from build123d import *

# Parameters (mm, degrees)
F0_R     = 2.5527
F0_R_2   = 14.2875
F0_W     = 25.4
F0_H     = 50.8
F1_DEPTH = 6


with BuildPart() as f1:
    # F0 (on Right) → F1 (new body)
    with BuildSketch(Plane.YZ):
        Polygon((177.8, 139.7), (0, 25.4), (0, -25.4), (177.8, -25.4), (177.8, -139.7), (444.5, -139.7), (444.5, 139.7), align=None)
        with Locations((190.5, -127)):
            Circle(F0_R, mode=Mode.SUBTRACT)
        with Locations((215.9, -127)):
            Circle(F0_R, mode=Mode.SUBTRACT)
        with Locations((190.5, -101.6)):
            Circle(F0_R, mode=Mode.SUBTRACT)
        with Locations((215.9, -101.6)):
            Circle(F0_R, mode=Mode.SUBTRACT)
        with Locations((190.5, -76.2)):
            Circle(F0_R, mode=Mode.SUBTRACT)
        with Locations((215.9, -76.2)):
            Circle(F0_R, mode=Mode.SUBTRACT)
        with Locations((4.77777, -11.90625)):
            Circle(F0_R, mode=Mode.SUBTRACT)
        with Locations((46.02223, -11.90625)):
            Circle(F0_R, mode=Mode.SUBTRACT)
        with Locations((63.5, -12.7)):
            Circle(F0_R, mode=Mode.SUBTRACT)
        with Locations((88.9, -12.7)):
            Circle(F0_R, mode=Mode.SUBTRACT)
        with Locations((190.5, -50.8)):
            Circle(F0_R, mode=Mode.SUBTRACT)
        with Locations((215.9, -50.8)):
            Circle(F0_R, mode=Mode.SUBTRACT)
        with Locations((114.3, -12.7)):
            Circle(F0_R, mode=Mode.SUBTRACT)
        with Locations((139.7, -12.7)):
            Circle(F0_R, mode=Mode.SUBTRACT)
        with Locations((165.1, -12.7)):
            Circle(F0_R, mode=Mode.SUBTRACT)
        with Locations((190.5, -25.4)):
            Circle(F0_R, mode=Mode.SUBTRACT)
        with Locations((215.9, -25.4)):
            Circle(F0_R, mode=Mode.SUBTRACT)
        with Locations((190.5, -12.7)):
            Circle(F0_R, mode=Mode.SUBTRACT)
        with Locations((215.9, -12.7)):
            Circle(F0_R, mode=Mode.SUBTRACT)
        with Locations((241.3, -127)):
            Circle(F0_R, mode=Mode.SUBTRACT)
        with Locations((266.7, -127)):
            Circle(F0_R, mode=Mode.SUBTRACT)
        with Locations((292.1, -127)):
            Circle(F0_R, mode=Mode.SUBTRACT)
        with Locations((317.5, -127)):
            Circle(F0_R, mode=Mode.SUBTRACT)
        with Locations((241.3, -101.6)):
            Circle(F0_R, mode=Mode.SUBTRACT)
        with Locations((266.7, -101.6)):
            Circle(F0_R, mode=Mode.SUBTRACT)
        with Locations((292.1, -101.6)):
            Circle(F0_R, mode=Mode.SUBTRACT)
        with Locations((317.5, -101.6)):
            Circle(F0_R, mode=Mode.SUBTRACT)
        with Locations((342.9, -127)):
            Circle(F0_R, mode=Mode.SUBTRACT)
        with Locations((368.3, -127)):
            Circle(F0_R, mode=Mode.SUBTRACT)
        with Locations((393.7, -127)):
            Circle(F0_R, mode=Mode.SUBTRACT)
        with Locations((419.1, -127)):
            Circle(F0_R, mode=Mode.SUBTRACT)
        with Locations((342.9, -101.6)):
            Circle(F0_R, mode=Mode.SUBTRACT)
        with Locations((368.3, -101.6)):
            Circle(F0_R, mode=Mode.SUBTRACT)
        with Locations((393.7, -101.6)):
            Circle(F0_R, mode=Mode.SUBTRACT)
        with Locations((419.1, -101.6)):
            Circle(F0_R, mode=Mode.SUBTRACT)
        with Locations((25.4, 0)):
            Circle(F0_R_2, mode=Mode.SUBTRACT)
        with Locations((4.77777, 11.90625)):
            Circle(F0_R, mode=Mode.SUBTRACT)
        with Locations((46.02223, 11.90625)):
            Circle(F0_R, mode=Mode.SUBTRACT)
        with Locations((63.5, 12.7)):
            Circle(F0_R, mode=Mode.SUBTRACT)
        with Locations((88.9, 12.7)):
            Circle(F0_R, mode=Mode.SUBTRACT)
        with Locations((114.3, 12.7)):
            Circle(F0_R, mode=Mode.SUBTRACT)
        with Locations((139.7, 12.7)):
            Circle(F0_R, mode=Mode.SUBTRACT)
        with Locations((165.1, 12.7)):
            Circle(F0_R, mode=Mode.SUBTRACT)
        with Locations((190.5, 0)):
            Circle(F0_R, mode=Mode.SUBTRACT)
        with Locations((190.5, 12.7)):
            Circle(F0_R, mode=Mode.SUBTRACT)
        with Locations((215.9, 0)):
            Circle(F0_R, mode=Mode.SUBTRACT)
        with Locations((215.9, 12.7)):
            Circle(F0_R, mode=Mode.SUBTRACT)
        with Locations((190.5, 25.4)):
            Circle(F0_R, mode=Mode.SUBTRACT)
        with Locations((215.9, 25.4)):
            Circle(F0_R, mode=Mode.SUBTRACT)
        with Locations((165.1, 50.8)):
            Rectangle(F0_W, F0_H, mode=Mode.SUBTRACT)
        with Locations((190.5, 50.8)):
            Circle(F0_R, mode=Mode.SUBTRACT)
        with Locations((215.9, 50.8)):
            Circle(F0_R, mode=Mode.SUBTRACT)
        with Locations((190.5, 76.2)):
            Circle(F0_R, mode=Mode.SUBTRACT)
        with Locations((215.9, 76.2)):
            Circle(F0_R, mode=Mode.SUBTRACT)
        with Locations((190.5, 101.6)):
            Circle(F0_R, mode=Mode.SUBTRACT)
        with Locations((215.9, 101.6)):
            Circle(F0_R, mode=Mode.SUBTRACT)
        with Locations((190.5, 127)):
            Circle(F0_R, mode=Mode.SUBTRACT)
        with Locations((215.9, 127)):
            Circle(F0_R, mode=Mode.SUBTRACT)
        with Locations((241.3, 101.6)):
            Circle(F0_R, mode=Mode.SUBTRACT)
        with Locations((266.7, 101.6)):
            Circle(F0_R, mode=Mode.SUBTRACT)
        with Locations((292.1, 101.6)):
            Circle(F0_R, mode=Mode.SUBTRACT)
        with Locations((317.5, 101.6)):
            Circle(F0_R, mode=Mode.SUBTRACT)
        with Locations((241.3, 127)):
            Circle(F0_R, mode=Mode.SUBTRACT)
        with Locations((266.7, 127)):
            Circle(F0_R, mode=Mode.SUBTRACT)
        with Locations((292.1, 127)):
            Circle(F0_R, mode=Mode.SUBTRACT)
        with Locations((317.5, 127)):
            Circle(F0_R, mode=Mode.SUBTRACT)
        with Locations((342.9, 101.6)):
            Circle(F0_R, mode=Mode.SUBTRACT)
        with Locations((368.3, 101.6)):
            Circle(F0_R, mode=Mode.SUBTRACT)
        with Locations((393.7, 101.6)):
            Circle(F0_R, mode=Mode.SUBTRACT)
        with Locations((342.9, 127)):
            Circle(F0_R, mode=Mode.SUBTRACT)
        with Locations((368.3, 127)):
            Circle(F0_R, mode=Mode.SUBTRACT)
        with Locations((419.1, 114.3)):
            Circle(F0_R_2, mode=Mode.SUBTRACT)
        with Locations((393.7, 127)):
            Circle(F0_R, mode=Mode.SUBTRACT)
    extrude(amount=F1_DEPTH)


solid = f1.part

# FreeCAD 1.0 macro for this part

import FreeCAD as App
import Part
import Sketcher
from FreeCAD import Vector
Q = App.Units.Quantity

doc = App.newDocument("Part")
body = doc.addObject("PartDesign::Body", "Body")

sketch1 = doc.addObject("Sketcher::SketchObject", "Sketch")
body.addObject(sketch1)
sketch1.AttachmentSupport = (doc.YZ_Plane, [""])
sketch1.MapMode = "FlatFace"
sketch1.addGeometry([
    Part.LineSegment(Vector(177.8, 139.7, 0), Vector(0, 25.4, 0)),
    Part.LineSegment(Vector(0, 25.4, 0), Vector(0, -25.4, 0)),
    Part.LineSegment(Vector(0, -25.4, 0), Vector(177.8, -25.4, 0)),
    Part.LineSegment(Vector(177.8, -25.4, 0), Vector(177.8, -139.7, 0)),
    Part.LineSegment(Vector(177.8, -139.7, 0), Vector(444.5, -139.7, 0)),
    Part.LineSegment(Vector(444.5, -139.7, 0), Vector(444.5, 139.7, 0)),
    Part.LineSegment(Vector(444.5, 139.7, 0), Vector(177.8, 139.7, 0)),
    Part.Circle(Vector(190.5, -127, 0), Vector(0, 0, 1), 2.5527),
    Part.Circle(Vector(215.9, -127, 0), Vector(0, 0, 1), 2.5527),
    Part.Circle(Vector(190.5, -101.6, 0), Vector(0, 0, 1), 2.5527),
    Part.Circle(Vector(215.9, -101.6, 0), Vector(0, 0, 1), 2.5527),
    Part.Circle(Vector(190.5, -76.2, 0), Vector(0, 0, 1), 2.5527),
    Part.Circle(Vector(215.9, -76.2, 0), Vector(0, 0, 1), 2.5527),
    Part.Circle(Vector(4.77777, -11.90625, 0), Vector(0, 0, 1), 2.5527),
    Part.Circle(Vector(46.02223, -11.90625, 0), Vector(0, 0, 1), 2.5527),
    Part.Circle(Vector(63.5, -12.7, 0), Vector(0, 0, 1), 2.5527),
    Part.Circle(Vector(88.9, -12.7, 0), Vector(0, 0, 1), 2.5527),
    Part.Circle(Vector(190.5, -50.8, 0), Vector(0, 0, 1), 2.5527),
    Part.Circle(Vector(215.9, -50.8, 0), Vector(0, 0, 1), 2.5527),
    Part.Circle(Vector(114.3, -12.7, 0), Vector(0, 0, 1), 2.5527),
    Part.Circle(Vector(139.7, -12.7, 0), Vector(0, 0, 1), 2.5527),
    Part.Circle(Vector(190.5, -25.4, 0), Vector(0, 0, 1), 2.5527),
    Part.Circle(Vector(215.9, -25.4, 0), Vector(0, 0, 1), 2.5527),
    Part.Circle(Vector(165.1, -12.7, 0), Vector(0, 0, 1), 2.5527),
    Part.Circle(Vector(190.5, -12.7, 0), Vector(0, 0, 1), 2.5527),
    Part.Circle(Vector(215.9, -12.7, 0), Vector(0, 0, 1), 2.5527),
    Part.Circle(Vector(241.3, -127, 0), Vector(0, 0, 1), 2.5527),
    Part.Circle(Vector(266.7, -127, 0), Vector(0, 0, 1), 2.5527),
    Part.Circle(Vector(241.3, -101.6, 0), Vector(0, 0, 1), 2.5527),
    Part.Circle(Vector(266.7, -101.6, 0), Vector(0, 0, 1), 2.5527),
    Part.Circle(Vector(292.1, -127, 0), Vector(0, 0, 1), 2.5527),
    Part.Circle(Vector(317.5, -127, 0), Vector(0, 0, 1), 2.5527),
    Part.Circle(Vector(292.1, -101.6, 0), Vector(0, 0, 1), 2.5527),
    Part.Circle(Vector(317.5, -101.6, 0), Vector(0, 0, 1), 2.5527),
    Part.Circle(Vector(342.9, -127, 0), Vector(0, 0, 1), 2.5527),
    Part.Circle(Vector(368.3, -127, 0), Vector(0, 0, 1), 2.5527),
    Part.Circle(Vector(342.9, -101.6, 0), Vector(0, 0, 1), 2.5527),
    Part.Circle(Vector(368.3, -101.6, 0), Vector(0, 0, 1), 2.5527),
    Part.Circle(Vector(393.7, -127, 0), Vector(0, 0, 1), 2.5527),
    Part.Circle(Vector(419.1, -127, 0), Vector(0, 0, 1), 2.5527),
    Part.Circle(Vector(393.7, -101.6, 0), Vector(0, 0, 1), 2.5527),
    Part.Circle(Vector(419.1, -101.6, 0), Vector(0, 0, 1), 2.5527),
    Part.Circle(Vector(25.4, 0, 0), Vector(0, 0, 1), 14.2875),
    Part.Circle(Vector(4.77777, 11.90625, 0), Vector(0, 0, 1), 2.5527),
    Part.Circle(Vector(46.02223, 11.90625, 0), Vector(0, 0, 1), 2.5527),
    Part.Circle(Vector(63.5, 12.7, 0), Vector(0, 0, 1), 2.5527),
    Part.Circle(Vector(88.9, 12.7, 0), Vector(0, 0, 1), 2.5527),
    Part.Circle(Vector(114.3, 12.7, 0), Vector(0, 0, 1), 2.5527),
    Part.Circle(Vector(139.7, 12.7, 0), Vector(0, 0, 1), 2.5527),
    Part.Circle(Vector(190.5, 0, 0), Vector(0, 0, 1), 2.5527),
    Part.Circle(Vector(165.1, 12.7, 0), Vector(0, 0, 1), 2.5527),
    Part.Circle(Vector(190.5, 12.7, 0), Vector(0, 0, 1), 2.5527),
    Part.Circle(Vector(215.9, 0, 0), Vector(0, 0, 1), 2.5527),
    Part.Circle(Vector(215.9, 12.7, 0), Vector(0, 0, 1), 2.5527),
    Part.Circle(Vector(190.5, 25.4, 0), Vector(0, 0, 1), 2.5527),
    Part.Circle(Vector(215.9, 25.4, 0), Vector(0, 0, 1), 2.5527),
    Part.LineSegment(Vector(177.8, 25.4, 0), Vector(152.4, 25.4, 0)),
    Part.LineSegment(Vector(152.4, 25.4, 0), Vector(152.4, 76.2, 0)),
    Part.LineSegment(Vector(152.4, 76.2, 0), Vector(177.8, 76.2, 0)),
    Part.LineSegment(Vector(177.8, 76.2, 0), Vector(177.8, 25.4, 0)),
    Part.Circle(Vector(190.5, 50.8, 0), Vector(0, 0, 1), 2.5527),
    Part.Circle(Vector(215.9, 50.8, 0), Vector(0, 0, 1), 2.5527),
    Part.Circle(Vector(190.5, 76.2, 0), Vector(0, 0, 1), 2.5527),
    Part.Circle(Vector(215.9, 76.2, 0), Vector(0, 0, 1), 2.5527),
    Part.Circle(Vector(190.5, 101.6, 0), Vector(0, 0, 1), 2.5527),
    Part.Circle(Vector(215.9, 101.6, 0), Vector(0, 0, 1), 2.5527),
    Part.Circle(Vector(190.5, 127, 0), Vector(0, 0, 1), 2.5527),
    Part.Circle(Vector(215.9, 127, 0), Vector(0, 0, 1), 2.5527),
    Part.Circle(Vector(241.3, 101.6, 0), Vector(0, 0, 1), 2.5527),
    Part.Circle(Vector(266.7, 101.6, 0), Vector(0, 0, 1), 2.5527),
    Part.Circle(Vector(241.3, 127, 0), Vector(0, 0, 1), 2.5527),
    Part.Circle(Vector(266.7, 127, 0), Vector(0, 0, 1), 2.5527),
    Part.Circle(Vector(292.1, 101.6, 0), Vector(0, 0, 1), 2.5527),
    Part.Circle(Vector(317.5, 101.6, 0), Vector(0, 0, 1), 2.5527),
    Part.Circle(Vector(292.1, 127, 0), Vector(0, 0, 1), 2.5527),
    Part.Circle(Vector(317.5, 127, 0), Vector(0, 0, 1), 2.5527),
    Part.Circle(Vector(342.9, 101.6, 0), Vector(0, 0, 1), 2.5527),
    Part.Circle(Vector(368.3, 101.6, 0), Vector(0, 0, 1), 2.5527),
    Part.Circle(Vector(342.9, 127, 0), Vector(0, 0, 1), 2.5527),
    Part.Circle(Vector(368.3, 127, 0), Vector(0, 0, 1), 2.5527),
    Part.Circle(Vector(393.7, 101.6, 0), Vector(0, 0, 1), 2.5527),
    Part.Circle(Vector(393.7, 127, 0), Vector(0, 0, 1), 2.5527),
    Part.Circle(Vector(419.1, 114.3, 0), Vector(0, 0, 1), 14.2875),
], False)
sketch1.addConstraint([
    Sketcher.Constraint("Coincident", 0, 2, 1, 1),
    Sketcher.Constraint("Coincident", 1, 2, 2, 1),
    Sketcher.Constraint("Coincident", 2, 2, 3, 1),
    Sketcher.Constraint("Coincident", 3, 2, 4, 1),
    Sketcher.Constraint("Coincident", 4, 2, 5, 1),
    Sketcher.Constraint("Coincident", 5, 2, 6, 1),
    Sketcher.Constraint("Coincident", 6, 2, 0, 1),
    Sketcher.Constraint("Coincident", 56, 2, 57, 1),
    Sketcher.Constraint("Coincident", 57, 2, 58, 1),
    Sketcher.Constraint("Coincident", 58, 2, 59, 1),
    Sketcher.Constraint("Coincident", 59, 2, 56, 1),
    Sketcher.Constraint("Vertical", 1),
    Sketcher.Constraint("Horizontal", 2),
    Sketcher.Constraint("Vertical", 3),
    Sketcher.Constraint("Horizontal", 4),
    Sketcher.Constraint("Vertical", 5),
    Sketcher.Constraint("Horizontal", 6),
    Sketcher.Constraint("Horizontal", 56),
    Sketcher.Constraint("Vertical", 57),
    Sketcher.Constraint("Horizontal", 58),
    Sketcher.Constraint("Vertical", 59),
    Sketcher.Constraint("Equal", 7, 8),
    Sketcher.Constraint("Equal", 8, 9),
    Sketcher.Constraint("Equal", 9, 10),
    Sketcher.Constraint("Equal", 10, 11),
    Sketcher.Constraint("Equal", 11, 12),
    Sketcher.Constraint("Equal", 12, 13),
    Sketcher.Constraint("Equal", 13, 14),
    Sketcher.Constraint("Equal", 14, 15),
    Sketcher.Constraint("Equal", 15, 16),
    Sketcher.Constraint("Equal", 16, 17),
    Sketcher.Constraint("Equal", 17, 18),
    Sketcher.Constraint("Equal", 18, 19),
    Sketcher.Constraint("Equal", 19, 20),
    Sketcher.Constraint("Equal", 20, 21),
    Sketcher.Constraint("Equal", 21, 22),
    Sketcher.Constraint("Equal", 22, 23),
    Sketcher.Constraint("Equal", 23, 24),
    Sketcher.Constraint("Equal", 24, 25),
    Sketcher.Constraint("Equal", 25, 26),
    Sketcher.Constraint("Equal", 26, 27),
    Sketcher.Constraint("Equal", 27, 28),
    Sketcher.Constraint("Equal", 28, 29),
    Sketcher.Constraint("Equal", 29, 30),
    Sketcher.Constraint("Equal", 30, 31),
    Sketcher.Constraint("Equal", 31, 32),
    Sketcher.Constraint("Equal", 32, 33),
    Sketcher.Constraint("Equal", 33, 34),
    Sketcher.Constraint("Equal", 34, 35),
    Sketcher.Constraint("Equal", 35, 36),
    Sketcher.Constraint("Equal", 36, 37),
    Sketcher.Constraint("Equal", 37, 38),
    Sketcher.Constraint("Equal", 38, 39),
    Sketcher.Constraint("Equal", 39, 40),
    Sketcher.Constraint("Equal", 40, 41),
    Sketcher.Constraint("Equal", 41, 43),
    Sketcher.Constraint("Equal", 43, 44),
    Sketcher.Constraint("Equal", 44, 45),
    Sketcher.Constraint("Equal", 45, 46),
    Sketcher.Constraint("Equal", 46, 47),
    Sketcher.Constraint("Equal", 47, 48),
    Sketcher.Constraint("Equal", 48, 49),
    Sketcher.Constraint("Equal", 49, 50),
    Sketcher.Constraint("Equal", 50, 51),
    Sketcher.Constraint("Equal", 51, 52),
    Sketcher.Constraint("Equal", 52, 53),
    Sketcher.Constraint("Equal", 53, 54),
    Sketcher.Constraint("Equal", 54, 55),
    Sketcher.Constraint("Equal", 55, 60),
    Sketcher.Constraint("Equal", 60, 61),
    Sketcher.Constraint("Equal", 61, 62),
    Sketcher.Constraint("Equal", 62, 63),
    Sketcher.Constraint("Equal", 63, 64),
    Sketcher.Constraint("Equal", 64, 65),
    Sketcher.Constraint("Equal", 65, 66),
    Sketcher.Constraint("Equal", 66, 67),
    Sketcher.Constraint("Equal", 67, 68),
    Sketcher.Constraint("Equal", 68, 69),
    Sketcher.Constraint("Equal", 69, 70),
    Sketcher.Constraint("Equal", 70, 71),
    Sketcher.Constraint("Equal", 71, 72),
    Sketcher.Constraint("Equal", 72, 73),
    Sketcher.Constraint("Equal", 73, 74),
    Sketcher.Constraint("Equal", 74, 75),
    Sketcher.Constraint("Equal", 75, 76),
    Sketcher.Constraint("Equal", 76, 77),
    Sketcher.Constraint("Equal", 77, 78),
    Sketcher.Constraint("Equal", 78, 79),
    Sketcher.Constraint("Equal", 79, 80),
    Sketcher.Constraint("Equal", 80, 81),
    Sketcher.Constraint("Equal", 42, 82),
    Sketcher.Constraint("Symmetric", 0, 2, 1, 2, -1, 1),
    Sketcher.Constraint("Symmetric", 13, 3, 43, 3, -1),
    Sketcher.Constraint("Symmetric", 14, 3, 44, 3, -1),
    Sketcher.Constraint("Symmetric", 15, 3, 45, 3, -1),
    Sketcher.Constraint("Symmetric", 16, 3, 46, 3, -1),
    Sketcher.Constraint("Symmetric", 19, 3, 47, 3, -1),
    Sketcher.Constraint("Symmetric", 20, 3, 48, 3, -1),
    Sketcher.Constraint("Symmetric", 23, 3, 50, 3, -1),
    Sketcher.Constraint("Symmetric", 24, 3, 51, 3, -1),
    Sketcher.Constraint("Symmetric", 25, 3, 53, 3, -1),
    Sketcher.Constraint("Symmetric", 21, 3, 54, 3, -1),
    Sketcher.Constraint("Symmetric", 22, 3, 55, 3, -1),
    Sketcher.Constraint("Symmetric", 17, 3, 60, 3, -1),
    Sketcher.Constraint("Symmetric", 18, 3, 61, 3, -1),
    Sketcher.Constraint("Symmetric", 11, 3, 62, 3, -1),
    Sketcher.Constraint("Symmetric", 12, 3, 63, 3, -1),
    Sketcher.Constraint("Symmetric", 9, 3, 64, 3, -1),
    Sketcher.Constraint("Symmetric", 10, 3, 65, 3, -1),
    Sketcher.Constraint("Symmetric", 7, 3, 66, 3, -1),
    Sketcher.Constraint("Symmetric", 8, 3, 67, 3, -1),
    Sketcher.Constraint("Symmetric", 28, 3, 68, 3, -1),
    Sketcher.Constraint("Symmetric", 29, 3, 69, 3, -1),
    Sketcher.Constraint("Symmetric", 26, 3, 70, 3, -1),
    Sketcher.Constraint("Symmetric", 27, 3, 71, 3, -1),
    Sketcher.Constraint("Symmetric", 32, 3, 72, 3, -1),
    Sketcher.Constraint("Symmetric", 33, 3, 73, 3, -1),
    Sketcher.Constraint("Symmetric", 30, 3, 74, 3, -1),
    Sketcher.Constraint("Symmetric", 31, 3, 75, 3, -1),
    Sketcher.Constraint("Symmetric", 36, 3, 76, 3, -1),
    Sketcher.Constraint("Symmetric", 37, 3, 77, 3, -1),
    Sketcher.Constraint("Symmetric", 34, 3, 78, 3, -1),
    Sketcher.Constraint("Symmetric", 35, 3, 79, 3, -1),
    Sketcher.Constraint("Symmetric", 40, 3, 80, 3, -1),
    Sketcher.Constraint("Symmetric", 38, 3, 81, 3, -1),
    Sketcher.Constraint("Symmetric", 3, 2, 6, 2, -1),
    Sketcher.Constraint("Symmetric", 2, 2, 59, 2, -1),
    Sketcher.Constraint("PointOnObject", 42, 3, -1),
    Sketcher.Constraint("PointOnObject", 49, 3, -1),
    Sketcher.Constraint("PointOnObject", 52, 3, -1),
    Sketcher.Constraint("Horizontal", 7, 3, 8, 3),
    Sketcher.Constraint("Horizontal", 9, 3, 10, 3),
    Sketcher.Constraint("Horizontal", 11, 3, 12, 3),
    Sketcher.Constraint("Horizontal", 13, 3, 14, 3),
    Sketcher.Constraint("Horizontal", 15, 3, 16, 3),
    Sketcher.Constraint("Horizontal", 17, 3, 18, 3),
    Sketcher.Constraint("Horizontal", 16, 3, 19, 3),
    Sketcher.Constraint("Horizontal", 19, 3, 20, 3),
    Sketcher.Constraint("Horizontal", 21, 3, 22, 3),
    Sketcher.Constraint("Horizontal", 20, 3, 23, 3),
    Sketcher.Constraint("Horizontal", 23, 3, 24, 3),
    Sketcher.Constraint("Horizontal", 24, 3, 25, 3),
    Sketcher.Constraint("Horizontal", 8, 3, 26, 3),
    Sketcher.Constraint("Horizontal", 26, 3, 27, 3),
    Sketcher.Constraint("Horizontal", 10, 3, 28, 3),
    Sketcher.Constraint("Horizontal", 28, 3, 29, 3),
    Sketcher.Constraint("Horizontal", 27, 3, 30, 3),
    Sketcher.Constraint("Horizontal", 30, 3, 31, 3),
    Sketcher.Constraint("Horizontal", 29, 3, 32, 3),
    Sketcher.Constraint("Horizontal", 32, 3, 33, 3),
    Sketcher.Constraint("Horizontal", 31, 3, 34, 3),
    Sketcher.Constraint("Horizontal", 34, 3, 35, 3),
    Sketcher.Constraint("Horizontal", 33, 3, 36, 3),
    Sketcher.Constraint("Horizontal", 36, 3, 37, 3),
    Sketcher.Constraint("Horizontal", 35, 3, 38, 3),
    Sketcher.Constraint("Horizontal", 38, 3, 39, 3),
    Sketcher.Constraint("Horizontal", 37, 3, 40, 3),
    Sketcher.Constraint("Horizontal", 40, 3, 41, 3),
    Sketcher.Constraint("Horizontal", 55, 3, 0, 2),
    Sketcher.Constraint("Horizontal", 63, 3, 57, 2),
    Sketcher.Constraint("Vertical", 7, 3, 9, 3),
    Sketcher.Constraint("Vertical", 8, 3, 10, 3),
    Sketcher.Constraint("Vertical", 9, 3, 11, 3),
    Sketcher.Constraint("Vertical", 10, 3, 12, 3),
    Sketcher.Constraint("Vertical", 11, 3, 17, 3),
    Sketcher.Constraint("Vertical", 12, 3, 18, 3),
    Sketcher.Constraint("Vertical", 17, 3, 21, 3),
    Sketcher.Constraint("Vertical", 18, 3, 22, 3),
    Sketcher.Constraint("Vertical", 21, 3, 24, 3),
    Sketcher.Constraint("Vertical", 22, 3, 25, 3),
    Sketcher.Constraint("Vertical", 26, 3, 28, 3),
    Sketcher.Constraint("Vertical", 27, 3, 29, 3),
    Sketcher.Constraint("Vertical", 30, 3, 32, 3),
    Sketcher.Constraint("Vertical", 31, 3, 33, 3),
    Sketcher.Constraint("Vertical", 34, 3, 36, 3),
    Sketcher.Constraint("Vertical", 35, 3, 37, 3),
    Sketcher.Constraint("Vertical", 38, 3, 40, 3),
    Sketcher.Constraint("Vertical", 39, 3, 41, 3),
    Sketcher.Constraint("Vertical", 24, 3, 49, 3),
    Sketcher.Constraint("Vertical", 25, 3, 52, 3),
    Sketcher.Constraint("Vertical", 41, 3, 82, 3),
    Sketcher.Constraint("Equal", 1, 57),
    Sketcher.Constraint("DistanceX", 2, 1, 2, 2, Q("7 in")),
    Sketcher.Constraint("DistanceX", 56, 2, 56, 1, Q("1 in")),
    Sketcher.Constraint("DistanceY", 1, 2, 1, 1, Q("2 in")),
    Sketcher.Constraint("DistanceY", 5, 1, 5, 2, Q("11 in")),
    Sketcher.Constraint("Diameter", 7, Q("0.201 in")),
    Sketcher.Constraint("Diameter", 42, Q("1.125 in")),
    Sketcher.Constraint("DistanceX", 4, 1, 4, 2, Q("10.5 in")),
    Sketcher.Constraint("DistanceY", 7, 3, -1, 1, Q("5 in")),
    Sketcher.Constraint("DistanceY", 9, 3, -1, 1, Q("4 in")),
    Sketcher.Constraint("DistanceY", 17, 3, -1, 1, Q("2 in")),
    Sketcher.Constraint("DistanceX", -1, 1, 42, 3, Q("1 in")),
    Sketcher.Constraint("DistanceX", -1, 1, 7, 3, Q("7.5 in")),
    Sketcher.Constraint("DistanceX", -1, 1, 8, 3, Q("8.5 in")),
    Sketcher.Constraint("DistanceX", -1, 1, 15, 3, Q("2.5 in")),
    Sketcher.Constraint("DistanceY", 15, 3, -1, 1, Q("0.5 in")),
    Sketcher.Constraint("DistanceX", -1, 1, 16, 3, Q("3.5 in")),
    Sketcher.Constraint("DistanceX", -1, 1, 19, 3, Q("4.5 in")),
    Sketcher.Constraint("DistanceX", -1, 1, 20, 3, Q("5.5 in")),
    Sketcher.Constraint("DistanceX", -1, 1, 23, 3, Q("6.5 in")),
    Sketcher.Constraint("DistanceX", -1, 1, 26, 3, Q("9.5 in")),
    Sketcher.Constraint("DistanceX", -1, 1, 27, 3, Q("10.5 in")),
    Sketcher.Constraint("DistanceX", -1, 1, 30, 3, Q("11.5 in")),
    Sketcher.Constraint("DistanceX", -1, 1, 31, 3, Q("12.5 in")),
    Sketcher.Constraint("DistanceX", -1, 1, 34, 3, Q("13.5 in")),
    Sketcher.Constraint("DistanceX", -1, 1, 35, 3, Q("14.5 in")),
    Sketcher.Constraint("DistanceX", -1, 1, 38, 3, Q("15.5 in")),
    Sketcher.Constraint("DistanceX", -1, 1, 39, 3, Q("16.5 in")),
    Sketcher.Constraint("DistanceY", -1, 1, 82, 3, Q("4.5 in")),
    Sketcher.Constraint("DistanceY", 13, 3, -1, 1, Q("0.46875 in")),
    Sketcher.Constraint("DistanceX", -1, 1, 13, 3, 4.77777),
    Sketcher.Constraint("DistanceX", -1, 1, 14, 3, 46.02223),
])
pad1 = doc.addObject("PartDesign::Pad", "Pad")
body.addObject(pad1)
pad1.Profile = sketch1
pad1.Length = 6

doc.recompute()
